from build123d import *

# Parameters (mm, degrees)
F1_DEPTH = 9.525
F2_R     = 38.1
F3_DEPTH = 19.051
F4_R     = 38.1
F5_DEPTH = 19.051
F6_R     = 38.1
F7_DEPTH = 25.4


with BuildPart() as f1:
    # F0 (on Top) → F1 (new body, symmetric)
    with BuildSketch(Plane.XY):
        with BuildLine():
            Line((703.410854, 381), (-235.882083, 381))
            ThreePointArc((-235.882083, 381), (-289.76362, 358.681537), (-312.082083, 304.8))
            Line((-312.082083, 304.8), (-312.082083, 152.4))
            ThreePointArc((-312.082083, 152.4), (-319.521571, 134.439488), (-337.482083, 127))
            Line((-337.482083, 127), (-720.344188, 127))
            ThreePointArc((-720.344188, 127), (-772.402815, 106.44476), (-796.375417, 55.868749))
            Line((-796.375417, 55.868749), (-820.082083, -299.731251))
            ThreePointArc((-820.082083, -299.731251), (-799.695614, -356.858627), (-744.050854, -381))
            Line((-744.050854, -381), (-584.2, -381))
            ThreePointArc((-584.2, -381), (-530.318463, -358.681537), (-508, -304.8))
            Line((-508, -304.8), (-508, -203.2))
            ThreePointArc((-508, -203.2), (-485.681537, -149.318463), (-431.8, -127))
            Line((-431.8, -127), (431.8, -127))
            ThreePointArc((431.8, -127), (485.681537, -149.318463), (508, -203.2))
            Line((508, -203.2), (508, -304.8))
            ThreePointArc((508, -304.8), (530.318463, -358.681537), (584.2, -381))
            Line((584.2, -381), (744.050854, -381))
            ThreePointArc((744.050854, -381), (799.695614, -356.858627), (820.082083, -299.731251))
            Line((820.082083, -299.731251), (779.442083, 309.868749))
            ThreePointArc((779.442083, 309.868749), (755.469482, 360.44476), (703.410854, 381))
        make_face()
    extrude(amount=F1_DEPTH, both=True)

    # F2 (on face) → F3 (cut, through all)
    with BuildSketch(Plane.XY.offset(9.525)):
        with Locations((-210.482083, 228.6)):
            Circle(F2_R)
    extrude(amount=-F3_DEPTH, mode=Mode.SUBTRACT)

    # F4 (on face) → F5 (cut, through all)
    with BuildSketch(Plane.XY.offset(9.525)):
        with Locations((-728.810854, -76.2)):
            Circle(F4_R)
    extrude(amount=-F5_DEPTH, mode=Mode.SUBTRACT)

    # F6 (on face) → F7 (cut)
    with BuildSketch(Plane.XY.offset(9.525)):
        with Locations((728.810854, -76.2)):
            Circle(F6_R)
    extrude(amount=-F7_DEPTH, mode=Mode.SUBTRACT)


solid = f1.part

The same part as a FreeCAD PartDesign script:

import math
import FreeCAD as App
import Part
import Sketcher

V = App.Vector
Q = App.Units.Quantity

doc = App.newDocument("Part")
body = doc.addObject("PartDesign::Body", "Body")

sketch1 = body.newObject("Sketcher::SketchObject", "Sketch")
sketch1.AttachmentSupport = (doc.getObject("XY_Plane"), [""])
sketch1.MapMode = "FlatFace"
sketch1.addGeometry(Part.LineSegment(V(703, 381, 0), V(-236, 381, 0)), False)
sketch1.addGeometry(Part.ArcOfCircle(Part.Circle(V(-236, 305, 0), V(0, 0, 1), 76), math.radians(90), math.radians(180)), False)
sketch1.addGeometry(Part.LineSegment(V(-312, 305, 0), V(-312, 152, 0)), False)
sketch1.addGeometry(Part.ArcOfCircle(Part.Circle(V(-337, 152, 0), V(0, 0, 1), 25), math.radians(-90), math.radians(0)), False)
sketch1.addGeometry(Part.LineSegment(V(-337, 127, 0), V(-720, 127, 0)), False)
sketch1.addGeometry(Part.ArcOfCircle(Part.Circle(V(-720, 51, 0), V(0, 0, 1), 76), math.radians(90), math.radians(176)), False)
sketch1.addGeometry(Part.LineSegment(V(-796, 56, 0), V(-820, -300, 0)), False)
sketch1.addGeometry(Part.ArcOfCircle(Part.Circle(V(-744, -305, 0), V(0, 0, 1), 76), math.radians(176), math.radians(270)), False)
sketch1.addGeometry(Part.LineSegment(V(-744, -381, 0), V(-584, -381, 0)), False)
sketch1.addGeometry(Part.ArcOfCircle(Part.Circle(V(-584, -305, 0), V(0, 0, 1), 76), math.radians(-90), math.radians(0)), False)
sketch1.addGeometry(Part.LineSegment(V(-508, -305, 0), V(-508, -203, 0)), False)
sketch1.addGeometry(Part.ArcOfCircle(Part.Circle(V(-432, -203, 0), V(0, 0, 1), 76), math.radians(90), math.radians(180)), False)
sketch1.addGeometry(Part.LineSegment(V(-432, -127, 0), V(432, -127, 0)), False)
sketch1.addGeometry(Part.ArcOfCircle(Part.Circle(V(432, -203, 0), V(0, 0, 1), 76), math.radians(0), math.radians(90)), False)
sketch1.addGeometry(Part.LineSegment(V(508, -203, 0), V(508, -305, 0)), False)
sketch1.addGeometry(Part.ArcOfCircle(Part.Circle(V(584, -305, 0), V(0, 0, 1), 76), math.radians(180), math.radians(270)), False)
sketch1.addGeometry(Part.LineSegment(V(584, -381, 0), V(744, -381, 0)), False)
sketch1.addGeometry(Part.ArcOfCircle(Part.Circle(V(744, -305, 0), V(0, 0, 1), 76), math.radians(-90), math.radians(4)), False)
sketch1.addGeometry(Part.LineSegment(V(820, -300, 0), V(779, 310, 0)), False)
sketch1.addGeometry(Part.ArcOfCircle(Part.Circle(V(703, 305, 0), V(0, 0, 1), 76), math.radians(4), math.radians(90)), False)
sketch1.addConstraint(Sketcher.Constraint("Tangent", 0, 2, 1, 1))
sketch1.addConstraint(Sketcher.Constraint("Tangent", 1, 2, 2, 1))
sketch1.addConstraint(Sketcher.Constraint("Tangent", 2, 2, 3, 2))
sketch1.addConstraint(Sketcher.Constraint("Tangent", 3, 1, 4, 1))
sketch1.addConstraint(Sketcher.Constraint("Tangent", 4, 2, 5, 1))
sketch1.addConstraint(Sketcher.Constraint("Tangent", 5, 2, 6, 1))
sketch1.addConstraint(Sketcher.Constraint("Tangent", 6, 2, 7, 1))
sketch1.addConstraint(Sketcher.Constraint("Tangent", 7, 2, 8, 1))
sketch1.addConstraint(Sketcher.Constraint("Tangent", 8, 2, 9, 1))
sketch1.addConstraint(Sketcher.Constraint("Tangent", 9, 2, 10, 1))
sketch1.addConstraint(Sketcher.Constraint("Tangent", 10, 2, 11, 2))
sketch1.addConstraint(Sketcher.Constraint("Tangent", 11, 1, 12, 1))
sketch1.addConstraint(Sketcher.Constraint("Tangent", 12, 2, 13, 2))
sketch1.addConstraint(Sketcher.Constraint("Tangent", 13, 1, 14, 1))
sketch1.addConstraint(Sketcher.Constraint("Tangent", 14, 2, 15, 1))
sketch1.addConstraint(Sketcher.Constraint("Tangent", 15, 2, 16, 1))
sketch1.addConstraint(Sketcher.Constraint("Tangent", 16, 2, 17, 1))
sketch1.addConstraint(Sketcher.Constraint("Tangent", 17, 2, 18, 1))
sketch1.addConstraint(Sketcher.Constraint("Tangent", 18, 2, 19, 1))
sketch1.addConstraint(Sketcher.Constraint("Tangent", 19, 2, 0, 1))
sketch1.addConstraint(Sketcher.Constraint("Horizontal", 0))
sketch1.addConstraint(Sketcher.Constraint("Vertical", 2))
sketch1.addConstraint(Sketcher.Constraint("Horizontal", 4))
sketch1.addConstraint(Sketcher.Constraint("Horizontal", 8))
sketch1.addConstraint(Sketcher.Constraint("Vertical", 10))
sketch1.addConstraint(Sketcher.Constraint("Horizontal", 12))
sketch1.addConstraint(Sketcher.Constraint("Vertical", 14))
sketch1.addConstraint(Sketcher.Constraint("Horizontal", 16))
sketch1.addConstraint(Sketcher.Constraint("Equal", 1, 5))
sketch1.addConstraint(Sketcher.Constraint("Equal", 5, 7))
sketch1.addConstraint(Sketcher.Constraint("Equal", 7, 9))
sketch1.addConstraint(Sketcher.Constraint("Equal", 9, 11))
sketch1.addConstraint(Sketcher.Constraint("Equal", 11, 13))
sketch1.addConstraint(Sketcher.Constraint("Equal", 13, 15))
sketch1.addConstraint(Sketcher.Constraint("Equal", 15, 17))
sketch1.addConstraint(Sketcher.Constraint("Equal", 17, 19))
sketch1.addConstraint(Sketcher.Constraint("Symmetric", 9, 3, 15, 3, -2))
sketch1.addConstraint(Sketcher.Constraint("Horizontal", 6, 2, 17, 2))
sketch1.addConstraint(Sketcher.Constraint("Equal", 8, 16))
sketch1.addConstraint(Sketcher.Constraint("Radius", 1, Q("3 in")))
sketch1.addConstraint(Sketcher.Constraint("Radius", 3, Q("1 in")))
sketch1.addConstraint(Sketcher.Constraint("DistanceX", 12, 1, 12, 2, Q("34 in")))
sketch1.addConstraint(Sketcher.Constraint("DistanceY", 2, 2, 2, 1, Q("6 in")))
sketch1.addConstraint(Sketcher.Constraint("DistanceY", 10, 1, 10, 2, Q("4 in")))
sketch1.addConstraint(Sketcher.Constraint("DistanceY", -1, 1, 1, 3, Q("12 in")))
sketch1.addConstraint(Sketcher.Constraint("DistanceY", 7, 3, -1, 1, Q("12 in")))
sketch1.addConstraint(Sketcher.Constraint("DistanceX", 19, 3, 17, 3, Q("1.5999999 in")))
sketch1.addConstraint(Sketcher.Constraint("DistanceX", 0, 2, 0, 1, 939.292937))
sketch1.addConstraint(Sketcher.Constraint("DistanceX", 4, 2, 4, 1, 382.862105))
pad1 = body.newObject("PartDesign::Pad", "Pad")
pad1.Profile = sketch1
pad1.Length = Q("0.75 in")
pad1.Midplane = True

sketch2 = body.newObject("Sketcher::SketchObject", "Sketch001")
sketch2.AttachmentSupport = (doc.getObject("XY_Plane"), [""])
sketch2.MapMode = "FlatFace"
sketch2.AttachmentOffset = App.Placement(V(0, 0, 0.375 * 25.4), App.Rotation())
sketch2.addGeometry(Part.Circle(V(-210, 229, 0), V(0, 0, 1), 38), False)
sketch2.addConstraint(Sketcher.Constraint("Diameter", 0, Q("3 in")))
sketch2.addConstraint(Sketcher.Constraint("DistanceY", -1, 1, 0, 3, Q("9 in")))
sketch2.addConstraint(Sketcher.Constraint("DistanceX", 0, 3, -1, 1, 210.482083))
pocket1 = body.newObject("PartDesign::Pocket", "Pocket")
pocket1.Profile = sketch2
pocket1.Type = "ThroughAll"

sketch3 = body.newObject("Sketcher::SketchObject", "Sketch002")
sketch3.AttachmentSupport = (doc.getObject("XY_Plane"), [""])
sketch3.MapMode = "FlatFace"
sketch3.AttachmentOffset = App.Placement(V(0, 0, 0.375 * 25.4), App.Rotation())
sketch3.addGeometry(Part.Circle(V(-729, -76, 0), V(0, 0, 1), 38), False)
sketch3.addConstraint(Sketcher.Constraint("Diameter", 0, Q("3 in")))
sketch3.addConstraint(Sketcher.Constraint("DistanceY", 0, 3, -1, 1, Q("3 in")))
sketch3.addConstraint(Sketcher.Constraint("DistanceX", 0, 3, -1, 1, 728.810854))
pocket2 = body.newObject("PartDesign::Pocket", "Pocket001")
pocket2.Profile = sketch3
pocket2.Type = "ThroughAll"

sketch4 = body.newObject("Sketcher::SketchObject", "Sketch003")
sketch4.AttachmentSupport = (doc.getObject("XY_Plane"), [""])
sketch4.MapMode = "FlatFace"
sketch4.AttachmentOffset = App.Placement(V(0, 0, 0.375 * 25.4), App.Rotation())
sketch4.addGeometry(Part.Circle(V(729, -76, 0), V(0, 0, 1), 38), False)
sketch4.addConstraint(Sketcher.Constraint("Diameter", 0, Q("3 in")))
sketch4.addConstraint(Sketcher.Constraint("DistanceY", 0, 3, -1, 1, Q("3 in")))
sketch4.addConstraint(Sketcher.Constraint("DistanceX", -1, 1, 0, 3, 728.810854))
pocket3 = body.newObject("PartDesign::Pocket", "Pocket002")
pocket3.Profile = sketch4
pocket3.Length = Q("1 in")

doc.recompute()
